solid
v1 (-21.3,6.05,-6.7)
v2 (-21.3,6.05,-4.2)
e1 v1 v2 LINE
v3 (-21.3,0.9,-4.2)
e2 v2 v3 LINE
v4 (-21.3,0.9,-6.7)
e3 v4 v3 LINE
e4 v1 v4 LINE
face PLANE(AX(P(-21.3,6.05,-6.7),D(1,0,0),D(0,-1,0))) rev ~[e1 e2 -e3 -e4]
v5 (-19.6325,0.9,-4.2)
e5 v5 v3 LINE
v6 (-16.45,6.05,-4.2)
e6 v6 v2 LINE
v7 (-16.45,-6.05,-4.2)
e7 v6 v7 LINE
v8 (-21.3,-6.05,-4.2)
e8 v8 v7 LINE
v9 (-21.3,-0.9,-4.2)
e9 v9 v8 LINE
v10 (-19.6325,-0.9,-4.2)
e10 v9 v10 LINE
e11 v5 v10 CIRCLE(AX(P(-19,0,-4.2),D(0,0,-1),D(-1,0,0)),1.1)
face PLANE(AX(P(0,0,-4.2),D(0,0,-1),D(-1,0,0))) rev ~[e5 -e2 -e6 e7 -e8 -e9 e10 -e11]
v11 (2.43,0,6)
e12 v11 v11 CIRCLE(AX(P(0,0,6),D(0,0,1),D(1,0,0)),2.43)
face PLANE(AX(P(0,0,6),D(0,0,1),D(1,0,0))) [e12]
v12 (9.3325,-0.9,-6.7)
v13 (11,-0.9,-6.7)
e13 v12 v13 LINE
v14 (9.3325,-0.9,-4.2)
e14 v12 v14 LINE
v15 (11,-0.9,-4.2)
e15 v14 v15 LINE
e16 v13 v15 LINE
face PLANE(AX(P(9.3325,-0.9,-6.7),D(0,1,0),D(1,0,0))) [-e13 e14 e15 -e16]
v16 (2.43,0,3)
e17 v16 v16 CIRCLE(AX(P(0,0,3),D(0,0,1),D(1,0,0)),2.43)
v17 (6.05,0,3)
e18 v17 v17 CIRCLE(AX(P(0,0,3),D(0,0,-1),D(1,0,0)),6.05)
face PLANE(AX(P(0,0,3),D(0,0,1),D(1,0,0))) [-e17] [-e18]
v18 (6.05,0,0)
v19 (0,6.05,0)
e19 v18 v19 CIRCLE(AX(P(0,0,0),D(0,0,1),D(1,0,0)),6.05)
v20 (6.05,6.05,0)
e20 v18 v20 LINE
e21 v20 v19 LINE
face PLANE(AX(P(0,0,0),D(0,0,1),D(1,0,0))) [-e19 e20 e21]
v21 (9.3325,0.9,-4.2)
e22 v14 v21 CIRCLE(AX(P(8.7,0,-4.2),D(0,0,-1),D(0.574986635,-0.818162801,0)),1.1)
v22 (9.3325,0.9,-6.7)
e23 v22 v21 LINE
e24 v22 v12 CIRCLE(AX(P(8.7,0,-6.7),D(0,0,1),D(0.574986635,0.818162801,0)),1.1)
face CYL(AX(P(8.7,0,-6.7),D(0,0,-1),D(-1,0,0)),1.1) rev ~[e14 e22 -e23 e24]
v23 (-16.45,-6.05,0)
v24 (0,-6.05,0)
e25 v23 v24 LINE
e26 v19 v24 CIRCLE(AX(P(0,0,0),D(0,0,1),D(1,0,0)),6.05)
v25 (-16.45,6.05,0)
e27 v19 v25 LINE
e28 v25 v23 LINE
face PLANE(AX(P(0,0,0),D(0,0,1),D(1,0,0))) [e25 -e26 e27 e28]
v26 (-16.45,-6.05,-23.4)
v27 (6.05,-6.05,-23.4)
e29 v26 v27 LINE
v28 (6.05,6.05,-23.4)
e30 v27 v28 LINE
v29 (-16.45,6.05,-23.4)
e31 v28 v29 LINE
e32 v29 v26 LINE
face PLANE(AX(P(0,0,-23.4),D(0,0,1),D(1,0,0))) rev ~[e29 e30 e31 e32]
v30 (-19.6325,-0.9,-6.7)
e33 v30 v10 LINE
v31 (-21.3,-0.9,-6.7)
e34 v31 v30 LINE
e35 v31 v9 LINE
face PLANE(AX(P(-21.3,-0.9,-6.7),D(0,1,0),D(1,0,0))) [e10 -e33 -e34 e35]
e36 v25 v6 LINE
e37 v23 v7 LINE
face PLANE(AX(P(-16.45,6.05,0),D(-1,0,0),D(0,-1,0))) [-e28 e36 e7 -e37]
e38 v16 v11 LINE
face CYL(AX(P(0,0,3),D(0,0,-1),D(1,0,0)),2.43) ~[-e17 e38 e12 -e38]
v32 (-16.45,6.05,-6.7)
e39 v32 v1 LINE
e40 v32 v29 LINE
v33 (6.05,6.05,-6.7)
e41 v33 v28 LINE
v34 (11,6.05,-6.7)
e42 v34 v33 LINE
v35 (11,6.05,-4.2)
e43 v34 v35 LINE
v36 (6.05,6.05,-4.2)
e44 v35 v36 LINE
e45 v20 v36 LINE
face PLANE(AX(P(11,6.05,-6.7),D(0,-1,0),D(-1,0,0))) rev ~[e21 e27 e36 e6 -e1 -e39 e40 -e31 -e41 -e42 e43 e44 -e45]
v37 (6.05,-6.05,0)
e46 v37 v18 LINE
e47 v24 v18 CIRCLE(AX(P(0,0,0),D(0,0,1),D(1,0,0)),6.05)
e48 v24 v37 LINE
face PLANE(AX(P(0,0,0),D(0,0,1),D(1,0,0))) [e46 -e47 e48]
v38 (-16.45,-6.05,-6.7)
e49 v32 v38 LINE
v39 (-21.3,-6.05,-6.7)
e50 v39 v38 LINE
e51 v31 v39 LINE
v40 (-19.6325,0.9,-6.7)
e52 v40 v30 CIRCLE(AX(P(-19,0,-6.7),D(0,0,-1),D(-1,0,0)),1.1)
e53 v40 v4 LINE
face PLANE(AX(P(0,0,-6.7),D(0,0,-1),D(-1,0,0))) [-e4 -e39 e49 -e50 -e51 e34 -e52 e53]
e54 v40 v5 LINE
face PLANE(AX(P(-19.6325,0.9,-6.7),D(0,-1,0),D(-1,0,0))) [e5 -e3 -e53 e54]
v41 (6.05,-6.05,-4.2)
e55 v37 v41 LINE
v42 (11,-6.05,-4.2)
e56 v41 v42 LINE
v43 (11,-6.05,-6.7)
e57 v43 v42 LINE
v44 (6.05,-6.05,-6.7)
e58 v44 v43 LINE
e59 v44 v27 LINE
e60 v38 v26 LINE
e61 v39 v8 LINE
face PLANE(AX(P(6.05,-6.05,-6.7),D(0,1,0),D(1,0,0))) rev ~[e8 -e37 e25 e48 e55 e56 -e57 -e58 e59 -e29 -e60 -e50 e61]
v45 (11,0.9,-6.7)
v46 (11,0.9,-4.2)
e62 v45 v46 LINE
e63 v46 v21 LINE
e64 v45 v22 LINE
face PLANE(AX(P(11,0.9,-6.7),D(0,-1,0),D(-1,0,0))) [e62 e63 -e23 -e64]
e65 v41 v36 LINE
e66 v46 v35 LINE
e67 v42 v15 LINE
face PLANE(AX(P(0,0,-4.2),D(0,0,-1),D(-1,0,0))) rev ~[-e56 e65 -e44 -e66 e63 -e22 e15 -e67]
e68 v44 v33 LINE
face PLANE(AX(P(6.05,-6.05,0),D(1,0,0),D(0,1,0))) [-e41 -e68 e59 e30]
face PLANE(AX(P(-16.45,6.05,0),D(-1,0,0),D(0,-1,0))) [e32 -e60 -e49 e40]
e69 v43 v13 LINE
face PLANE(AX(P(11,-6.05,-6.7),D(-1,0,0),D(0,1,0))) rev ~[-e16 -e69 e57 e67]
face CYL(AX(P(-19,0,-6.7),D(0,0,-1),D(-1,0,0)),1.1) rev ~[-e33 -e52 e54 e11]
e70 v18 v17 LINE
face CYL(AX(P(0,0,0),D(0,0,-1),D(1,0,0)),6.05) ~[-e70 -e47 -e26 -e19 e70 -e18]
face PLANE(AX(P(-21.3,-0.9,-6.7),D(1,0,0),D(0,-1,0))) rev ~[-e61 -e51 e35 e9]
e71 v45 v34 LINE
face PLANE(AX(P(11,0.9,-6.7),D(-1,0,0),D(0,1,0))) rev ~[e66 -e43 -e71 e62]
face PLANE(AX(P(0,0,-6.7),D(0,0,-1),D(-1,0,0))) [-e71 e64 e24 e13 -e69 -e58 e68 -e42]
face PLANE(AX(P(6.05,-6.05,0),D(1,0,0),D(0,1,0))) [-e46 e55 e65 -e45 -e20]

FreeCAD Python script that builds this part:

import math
import FreeCAD as App
import Part
import Sketcher

V = App.Vector
Q = App.Units.Quantity

doc = App.newDocument("Part")
params = doc.addObject("Spreadsheet::Sheet", "Params")
for row, (alias, value) in enumerate([
    ("sketch1_diameter", "12.1 mm"),
    ("pad1_length", "3 mm"),
    ("sketch2_width", "22.5 mm"),
    ("sketch2_height", "12.1 mm"),
    ("pad2_length", "23.4 mm"),
    ("sketch3_radius", "1.1 mm"),
    ("sketch3_width", "32.3 mm"),
    ("sketch3_height", "5.15 mm"),
    ("pad3_length", "2.5 mm"),
    ("sketch4_diameter", "4.86 mm"),
    ("pad4_length", "3 mm"),
], start=1):
    params.set(f"A{row}", alias)
    params.set(f"B{row}", "=" + value)
    params.setAlias(f"B{row}", alias)

body = doc.addObject("PartDesign::Body", "Body")

sketch1 = body.newObject("Sketcher::SketchObject", "Sketch")
sketch1.AttachmentSupport = (doc.getObject("XY_Plane"), [""])
sketch1.MapMode = "FlatFace"
sketch1.addGeometry(Part.Circle(V(0, 0, 0), V(0, 0, 1), 6.05), False)
sketch1.addConstraint(Sketcher.Constraint("Coincident", 0, 3, -1, 1))
sketch1.addConstraint(Sketcher.Constraint("Diameter", 0, Q("12.1 mm")))
sketch1.setExpression("Constraints[1]", "Params.sketch1_diameter")
pad1 = body.newObject("PartDesign::Pad", "Pad")
pad1.Profile = sketch1
pad1.setExpression("Length", "Params.pad1_length")

sketch2 = body.newObject("Sketcher::SketchObject", "Sketch001")
sketch2.AttachmentSupport = (doc.getObject("XY_Plane"), [""])
sketch2.MapMode = "FlatFace"
sketch2.addGeometry(Part.LineSegment(V(6.05, -6.05, 0), V(6.05, 6.05, 0)), False)
sketch2.addGeometry(Part.LineSegment(V(6.05, 6.05, 0), V(-16.45, 6.05, 0)), False)
sketch2.addGeometry(Part.LineSegment(V(-16.45, 6.05, 0), V(-16.45, -6.05, 0)), False)
sketch2.addGeometry(Part.LineSegment(V(-16.45, -6.05, 0), V(6.05, -6.05, 0)), False)
sketch2.addConstraint(Sketcher.Constraint("Coincident", 0, 2, 1, 1))
sketch2.addConstraint(Sketcher.Constraint("Coincident", 1, 2, 2, 1))
sketch2.addConstraint(Sketcher.Constraint("Coincident", 2, 2, 3, 1))
sketch2.addConstraint(Sketcher.Constraint("Coincident", 3, 2, 0, 1))
sketch2.addConstraint(Sketcher.Constraint("Vertical", 0))
sketch2.addConstraint(Sketcher.Constraint("Horizontal", 1))
sketch2.addConstraint(Sketcher.Constraint("Vertical", 2))
sketch2.addConstraint(Sketcher.Constraint("Horizontal", 3))
sketch2.addConstraint(Sketcher.Constraint("DistanceX", 1, 2, 1, 1, Q("22.5 mm")))
sketch2.addConstraint(Sketcher.Constraint("DistanceY", 0, 1, 0, 2, Q("12.1 mm")))
sketch2.addConstraint(Sketcher.Constraint("DistanceX", -1, 1, 0, 2, Q("6.05 mm")))
sketch2.addConstraint(Sketcher.Constraint("DistanceY", -1, 1, 0, 2, Q("6.05 mm")))
sketch2.setExpression("Constraints[8]", "Params.sketch2_width")
sketch2.setExpression("Constraints[9]", "Params.sketch2_height")
pad2 = body.newObject("PartDesign::Pad", "Pad001")
pad2.Profile = sketch2
pad2.setExpression("Length", "Params.pad2_length")
pad2.Reversed = True

sketch3 = body.newObject("Sketcher::SketchObject", "Sketch002")
sketch3.AttachmentSupport = (doc.getObject("XY_Plane"), [""])
sketch3.MapMode = "FlatFace"
sketch3.AttachmentOffset = App.Placement(V(0, 0, -6.7), App.Rotation())
sketch3.addGeometry(Part.LineSegment(V(-21.3, 6.05, 0), V(11, 6.05, 0)), False)
sketch3.addGeometry(Part.LineSegment(V(11, 6.05, 0), V(11, 0.9, 0)), False)
sketch3.addGeometry(Part.LineSegment(V(11, 0.9, 0), V(9.3325, 0.9, 0)), False)
sketch3.addGeometry(Part.ArcOfCircle(Part.Circle(V(8.7, 0, 0), V(0, 0, 1), 1.1), math.radians(54.901304), math.radians(305.098696)), False)
sketch3.addGeometry(Part.LineSegment(V(9.3325, -0.9, 0), V(11, -0.9, 0)), False)
sketch3.addGeometry(Part.LineSegment(V(11, -0.9, 0), V(11, -6.05, 0)), False)
sketch3.addGeometry(Part.LineSegment(V(11, -6.05, 0), V(-21.3, -6.05, 0)), False)
sketch3.addGeometry(Part.LineSegment(V(-21.3, -6.05, 0), V(-21.3, -0.9, 0)), False)
sketch3.addGeometry(Part.LineSegment(V(-21.3, -0.9, 0), V(-19.6325, -0.9, 0)), False)
sketch3.addGeometry(Part.ArcOfCircle(Part.Circle(V(-19, 0, 0), V(0, 0, 1), 1.1), math.radians(-125.098696), math.radians(125.098696)), False)
sketch3.addGeometry(Part.LineSegment(V(-19.6325, 0.9, 0), V(-21.3, 0.9, 0)), False)
sketch3.addGeometry(Part.LineSegment(V(-21.3, 0.9, 0), V(-21.3, 6.05, 0)), False)
sketch3.addConstraint(Sketcher.Constraint("Coincident", 0, 2, 1, 1))
sketch3.addConstraint(Sketcher.Constraint("Coincident", 1, 2, 2, 1))
sketch3.addConstraint(Sketcher.Constraint("Coincident", 2, 2, 3, 1))
sketch3.addConstraint(Sketcher.Constraint("Coincident", 3, 2, 4, 1))
sketch3.addConstraint(Sketcher.Constraint("Coincident", 4, 2, 5, 1))
sketch3.addConstraint(Sketcher.Constraint("Coincident", 5, 2, 6, 1))
sketch3.addConstraint(Sketcher.Constraint("Coincident", 6, 2, 7, 1))
sketch3.addConstraint(Sketcher.Constraint("Coincident", 7, 2, 8, 1))
sketch3.addConstraint(Sketcher.Constraint("Coincident", 8, 2, 9, 1))
sketch3.addConstraint(Sketcher.Constraint("Coincident", 9, 2, 10, 1))
sketch3.addConstraint(Sketcher.Constraint("Coincident", 10, 2, 11, 1))
sketch3.addConstraint(Sketcher.Constraint("Coincident", 11, 2, 0, 1))
sketch3.addConstraint(Sketcher.Constraint("Horizontal", 0))
sketch3.addConstraint(Sketcher.Constraint("Vertical", 1))
sketch3.addConstraint(Sketcher.Constraint("Horizontal", 2))
sketch3.addConstraint(Sketcher.Constraint("Horizontal", 4))
sketch3.addConstraint(Sketcher.Constraint("Vertical", 5))
sketch3.addConstraint(Sketcher.Constraint("Horizontal", 6))
sketch3.addConstraint(Sketcher.Constraint("Vertical", 7))
sketch3.addConstraint(Sketcher.Constraint("Horizontal", 8))
sketch3.addConstraint(Sketcher.Constraint("Horizontal", 10))
sketch3.addConstraint(Sketcher.Constraint("Vertical", 11))
sketch3.addConstraint(Sketcher.Constraint("Equal", 3, 9))
sketch3.addConstraint(Sketcher.Constraint("Symmetric", 2, 2, 3, 2, -1))
sketch3.addConstraint(Sketcher.Constraint("Symmetric", 0, 2, 5, 2, -1))
sketch3.addConstraint(Sketcher.Constraint("Symmetric", 8, 2, 9, 2, -1))
sketch3.addConstraint(Sketcher.Constraint("Horizontal", 4, 2, 7, 2))
sketch3.addConstraint(Sketcher.Constraint("Vertical", 7, 2, 10, 2))
sketch3.addConstraint(Sketcher.Constraint("Equal", 4, 8))
sketch3.addConstraint(Sketcher.Constraint("Radius", 3, Q("1.1 mm")))
sketch3.addConstraint(Sketcher.Constraint("DistanceX", 0, 1, 0, 2, Q("32.3 mm")))
sketch3.addConstraint(Sketcher.Constraint("DistanceX", -1, 1, 3, 3, Q("8.7 mm")))
sketch3.addConstraint(Sketcher.Constraint("DistanceX", 9, 3, 3, 3, Q("27.7 mm")))
sketch3.addConstraint(Sketcher.Constraint("DistanceY", 3, 2, 2, 2, Q("1.8 mm")))
sketch3.addConstraint(Sketcher.Constraint("DistanceY", 1, 2, 1, 1, Q("5.15 mm")))
sketch3.setExpression("Constraints[29]", "Params.sketch3_radius")
sketch3.setExpression("Constraints[30]", "Params.sketch3_width")
sketch3.setExpression("Constraints[34]", "Params.sketch3_height")
pad3 = body.newObject("PartDesign::Pad", "Pad002")
pad3.Profile = sketch3
pad3.setExpression("Length", "Params.pad3_length")

sketch4 = body.newObject("Sketcher::SketchObject", "Sketch003")
sketch4.AttachmentSupport = (doc.getObject("XY_Plane"), [""])
sketch4.MapMode = "FlatFace"
sketch4.AttachmentOffset = App.Placement(V(0, 0, 3), App.Rotation())
sketch4.addGeometry(Part.Circle(V(0, 0, 0), V(0, 0, 1), 2.43), False)
sketch4.addConstraint(Sketcher.Constraint("Coincident", 0, 3, -1, 1))
sketch4.addConstraint(Sketcher.Constraint("Diameter", 0, Q("4.86 mm")))
sketch4.setExpression("Constraints[1]", "Params.sketch4_diameter")
pad4 = body.newObject("PartDesign::Pad", "Pad003")
pad4.Profile = sketch4
pad4.setExpression("Length", "Params.pad4_length")

doc.recompute()
